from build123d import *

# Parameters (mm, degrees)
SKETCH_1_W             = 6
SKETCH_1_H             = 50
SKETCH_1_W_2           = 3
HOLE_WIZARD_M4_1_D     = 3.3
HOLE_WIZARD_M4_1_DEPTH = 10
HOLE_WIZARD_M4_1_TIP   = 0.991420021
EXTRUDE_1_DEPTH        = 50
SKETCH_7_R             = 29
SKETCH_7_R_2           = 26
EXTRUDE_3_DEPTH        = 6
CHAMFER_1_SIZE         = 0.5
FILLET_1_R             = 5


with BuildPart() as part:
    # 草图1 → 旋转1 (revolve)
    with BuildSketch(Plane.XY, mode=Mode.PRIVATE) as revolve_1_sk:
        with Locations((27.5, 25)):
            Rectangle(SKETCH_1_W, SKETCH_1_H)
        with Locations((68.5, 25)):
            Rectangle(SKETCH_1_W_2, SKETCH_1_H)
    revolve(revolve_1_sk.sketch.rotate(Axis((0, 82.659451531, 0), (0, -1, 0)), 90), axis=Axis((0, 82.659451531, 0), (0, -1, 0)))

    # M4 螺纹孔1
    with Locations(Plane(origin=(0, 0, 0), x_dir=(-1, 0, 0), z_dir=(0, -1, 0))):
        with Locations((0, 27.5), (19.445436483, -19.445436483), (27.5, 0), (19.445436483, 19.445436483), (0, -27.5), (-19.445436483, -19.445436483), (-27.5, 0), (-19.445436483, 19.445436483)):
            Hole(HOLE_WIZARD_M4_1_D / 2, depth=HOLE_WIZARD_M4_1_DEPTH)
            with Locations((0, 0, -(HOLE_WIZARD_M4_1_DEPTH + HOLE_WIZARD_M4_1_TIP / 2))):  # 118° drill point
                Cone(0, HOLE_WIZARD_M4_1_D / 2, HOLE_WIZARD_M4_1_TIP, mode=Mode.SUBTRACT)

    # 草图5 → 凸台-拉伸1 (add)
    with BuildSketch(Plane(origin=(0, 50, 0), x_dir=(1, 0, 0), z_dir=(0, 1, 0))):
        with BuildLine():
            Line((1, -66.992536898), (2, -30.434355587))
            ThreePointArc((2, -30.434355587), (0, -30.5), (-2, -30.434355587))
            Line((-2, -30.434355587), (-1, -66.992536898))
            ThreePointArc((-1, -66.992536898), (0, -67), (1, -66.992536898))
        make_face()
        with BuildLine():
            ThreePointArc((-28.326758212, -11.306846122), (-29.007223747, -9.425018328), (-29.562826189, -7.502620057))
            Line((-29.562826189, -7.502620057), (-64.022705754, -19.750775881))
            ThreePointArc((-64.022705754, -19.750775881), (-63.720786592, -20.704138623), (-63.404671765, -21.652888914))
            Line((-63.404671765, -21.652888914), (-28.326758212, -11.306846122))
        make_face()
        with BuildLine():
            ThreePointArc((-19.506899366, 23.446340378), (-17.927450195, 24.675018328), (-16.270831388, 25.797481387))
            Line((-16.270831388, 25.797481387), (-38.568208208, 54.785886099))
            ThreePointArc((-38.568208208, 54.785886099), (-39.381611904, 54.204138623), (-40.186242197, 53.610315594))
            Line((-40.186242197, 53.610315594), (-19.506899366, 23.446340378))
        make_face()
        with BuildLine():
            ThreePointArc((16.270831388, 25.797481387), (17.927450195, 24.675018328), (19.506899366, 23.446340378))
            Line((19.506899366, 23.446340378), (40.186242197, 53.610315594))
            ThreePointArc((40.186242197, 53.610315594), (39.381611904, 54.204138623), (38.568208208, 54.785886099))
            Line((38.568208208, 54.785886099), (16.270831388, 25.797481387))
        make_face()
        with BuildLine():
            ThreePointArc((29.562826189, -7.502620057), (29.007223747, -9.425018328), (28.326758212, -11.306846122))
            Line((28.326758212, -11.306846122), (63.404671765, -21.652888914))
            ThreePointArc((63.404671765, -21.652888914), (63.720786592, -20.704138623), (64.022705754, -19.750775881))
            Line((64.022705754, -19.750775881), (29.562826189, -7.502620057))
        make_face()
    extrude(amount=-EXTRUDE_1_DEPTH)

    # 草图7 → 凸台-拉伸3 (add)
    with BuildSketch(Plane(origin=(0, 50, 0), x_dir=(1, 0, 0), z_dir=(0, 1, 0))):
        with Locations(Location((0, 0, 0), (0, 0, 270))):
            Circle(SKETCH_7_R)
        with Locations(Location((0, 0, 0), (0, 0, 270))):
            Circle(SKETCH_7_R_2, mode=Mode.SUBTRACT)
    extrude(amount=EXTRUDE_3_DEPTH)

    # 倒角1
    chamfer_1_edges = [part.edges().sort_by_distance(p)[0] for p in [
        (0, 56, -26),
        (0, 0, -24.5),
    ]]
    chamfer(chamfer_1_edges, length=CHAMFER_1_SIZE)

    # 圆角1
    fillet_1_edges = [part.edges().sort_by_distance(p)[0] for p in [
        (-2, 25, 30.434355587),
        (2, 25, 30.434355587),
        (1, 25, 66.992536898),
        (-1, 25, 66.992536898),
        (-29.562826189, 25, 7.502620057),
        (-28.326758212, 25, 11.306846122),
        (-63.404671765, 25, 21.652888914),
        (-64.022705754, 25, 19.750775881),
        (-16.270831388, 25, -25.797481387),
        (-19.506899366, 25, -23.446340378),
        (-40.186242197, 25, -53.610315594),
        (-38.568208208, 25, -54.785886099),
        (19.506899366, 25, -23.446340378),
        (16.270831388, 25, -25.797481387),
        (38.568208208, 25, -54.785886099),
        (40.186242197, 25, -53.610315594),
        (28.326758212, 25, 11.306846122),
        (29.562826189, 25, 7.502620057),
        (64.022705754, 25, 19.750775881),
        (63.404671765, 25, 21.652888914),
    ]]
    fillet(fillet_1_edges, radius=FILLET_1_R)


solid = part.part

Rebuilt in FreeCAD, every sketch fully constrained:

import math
import FreeCAD as App
import Part
import Sketcher

V = App.Vector


def edges_at(feature, points):
    """Names of the edges that pass closest to the given points."""
    edges = feature.Shape.Edges
    near = lambda p: min(range(len(edges)), key=lambda i: edges[i].distToShape(Part.Vertex(*p))[0])
    return sorted({f"Edge{near(p) + 1}" for p in points})

doc = App.newDocument("Part")
body = doc.addObject("PartDesign::Body", "Body")
body.AllowCompound = True

# Sketch on XY plane
sketch1 = body.newObject("Sketcher::SketchObject", "Sketch")
sketch1.AttachmentSupport = (doc.getObject("XY_Plane"), [""])
sketch1.MapMode = "FlatFace"
sketch1.addGeometry(Part.LineSegment(V(24.5, 50, 0), V(24.5, 0, 0)), False)
sketch1.addGeometry(Part.LineSegment(V(24.5, 0, 0), V(30.5, 0, 0)), False)
sketch1.addGeometry(Part.LineSegment(V(30.5, 0, 0), V(30.5, 50, 0)), False)
sketch1.addGeometry(Part.LineSegment(V(30.5, 50, 0), V(24.5, 50, 0)), False)
sketch1.addGeometry(Part.LineSegment(V(67, 50, 0), V(67, 0, 0)), False)
sketch1.addGeometry(Part.LineSegment(V(67, 0, 0), V(70, 0, 0)), False)
sketch1.addGeometry(Part.LineSegment(V(70, 0, 0), V(70, 50, 0)), False)
sketch1.addGeometry(Part.LineSegment(V(70, 50, 0), V(67, 50, 0)), False)
sketch1.addConstraint(Sketcher.Constraint("Coincident", 0, 2, 1, 1))
sketch1.addConstraint(Sketcher.Constraint("Coincident", 1, 2, 2, 1))
sketch1.addConstraint(Sketcher.Constraint("Coincident", 2, 2, 3, 1))
sketch1.addConstraint(Sketcher.Constraint("Coincident", 3, 2, 0, 1))
sketch1.addConstraint(Sketcher.Constraint("Coincident", 4, 2, 5, 1))
sketch1.addConstraint(Sketcher.Constraint("Coincident", 5, 2, 6, 1))
sketch1.addConstraint(Sketcher.Constraint("Coincident", 6, 2, 7, 1))
sketch1.addConstraint(Sketcher.Constraint("Coincident", 7, 2, 4, 1))
sketch1.addConstraint(Sketcher.Constraint("Vertical", 0))
sketch1.addConstraint(Sketcher.Constraint("Horizontal", 1))
sketch1.addConstraint(Sketcher.Constraint("Vertical", 2))
sketch1.addConstraint(Sketcher.Constraint("Horizontal", 3))
sketch1.addConstraint(Sketcher.Constraint("Vertical", 4))
sketch1.addConstraint(Sketcher.Constraint("Horizontal", 5))
sketch1.addConstraint(Sketcher.Constraint("Vertical", 6))
sketch1.addConstraint(Sketcher.Constraint("Horizontal", 7))
sketch1.addConstraint(Sketcher.Constraint("PointOnObject", 0, 2, -1))
sketch1.addConstraint(Sketcher.Constraint("PointOnObject", 4, 2, -1))
sketch1.addConstraint(Sketcher.Constraint("Horizontal", 3, 2, 6, 2))
sketch1.addConstraint(Sketcher.Constraint("DistanceX", 1, 1, 1, 2, 6.0))
sketch1.addConstraint(Sketcher.Constraint("DistanceX", 5, 1, 5, 2, 3.0))
sketch1.addConstraint(Sketcher.Constraint("DistanceY", 0, 2, 0, 1, 50.0))
sketch1.addConstraint(Sketcher.Constraint("DistanceX", -1, 1, 4, 2, 67.0))
sketch1.addConstraint(Sketcher.Constraint("DistanceX", -1, 1, 0, 2, 24.5))
revolution = body.newObject("PartDesign::Revolution", "Revolution")
revolution.Profile = sketch1
revolution.ReferenceAxis = (sketch1, ["V_Axis"])
revolution.Angle = 360

# Sketch on XZ plane
sketch2 = body.newObject("Sketcher::SketchObject", "Sketch001")
sketch2.AttachmentSupport = (doc.getObject("XZ_Plane"), [""])
sketch2.MapMode = "FlatFace"
sketch2.addGeometry(Part.Circle(V(0, -27.5, 0), V(0, 0, 1), 1.6), False)
sketch2.addGeometry(Part.Circle(V(-19.4, 19.4, 0), V(0, 0, 1), 1.6), False)
sketch2.addGeometry(Part.Circle(V(-27.5, 0, 0), V(0, 0, 1), 1.6), False)
sketch2.addGeometry(Part.Circle(V(-19.4, -19.4, 0), V(0, 0, 1), 1.6), False)
sketch2.addGeometry(Part.Circle(V(0, 27.5, 0), V(0, 0, 1), 1.6), False)
sketch2.addGeometry(Part.Circle(V(19.4, 19.4, 0), V(0, 0, 1), 1.6), False)
sketch2.addGeometry(Part.Circle(V(27.5, 0, 0), V(0, 0, 1), 1.6), False)
sketch2.addGeometry(Part.Circle(V(19.4, -19.4, 0), V(0, 0, 1), 1.6), False)
sketch2.addConstraint(Sketcher.Constraint("Equal", 0, 1))
sketch2.addConstraint(Sketcher.Constraint("Equal", 1, 2))
sketch2.addConstraint(Sketcher.Constraint("Equal", 2, 3))
sketch2.addConstraint(Sketcher.Constraint("Equal", 3, 4))
sketch2.addConstraint(Sketcher.Constraint("Equal", 4, 5))
sketch2.addConstraint(Sketcher.Constraint("Equal", 5, 6))
sketch2.addConstraint(Sketcher.Constraint("Equal", 6, 7))
sketch2.addConstraint(Sketcher.Constraint("Symmetric", 0, 3, 4, 3, -1, 1))
sketch2.addConstraint(Sketcher.Constraint("Symmetric", 3, 3, 5, 3, -1, 1))
sketch2.addConstraint(Sketcher.Constraint("Symmetric", 2, 3, 6, 3, -1, 1))
sketch2.addConstraint(Sketcher.Constraint("Symmetric", 1, 3, 7, 3, -1, 1))
sketch2.addConstraint(Sketcher.Constraint("Symmetric", 1, 3, 5, 3, -2))
sketch2.addConstraint(Sketcher.Constraint("PointOnObject", 0, 3, -2))
sketch2.addConstraint(Sketcher.Constraint("PointOnObject", 2, 3, -1))
sketch2.addConstraint(Sketcher.Constraint("Diameter", 0, 3.3))
sketch2.addConstraint(Sketcher.Constraint("DistanceY", 0, 3, 4, 3, 55.0))
sketch2.addConstraint(Sketcher.Constraint("DistanceX", 2, 3, -1, 1, 27.5))
sketch2.addConstraint(Sketcher.Constraint("DistanceX", 1, 3, -1, 1, 19.445436))
sketch2.addConstraint(Sketcher.Constraint("DistanceY", -1, 1, 1, 3, 19.445436))
doc.recompute()
hole = body.newObject("PartDesign::Hole", "Hole")
hole.Profile = sketch2
hole.ThreadType = "None"
hole.Diameter = 3.3
hole.DepthType = "Dimension"
hole.Depth = 10
hole.DrillPoint = "Angled"
hole.DrillPointAngle = 118

# Sketch on XZ plane
sketch3 = body.newObject("Sketcher::SketchObject", "Sketch002")
sketch3.AttachmentSupport = (doc.getObject("XZ_Plane"), [""])
sketch3.MapMode = "FlatFace"
sketch3.AttachmentOffset = App.Placement(V(0, 0, -50), App.Rotation())
sketch3.addGeometry(Part.LineSegment(V(1, 66.992537, 0), V(2, 30.434356, 0)), False)
sketch3.addGeometry(Part.ArcOfCircle(Part.Circle(V(0, 0, 0), V(0, 0, 1), 30.5), math.radians(86.240202), math.radians(93.759798)), False)
sketch3.addGeometry(Part.LineSegment(V(-2, 30.434356, 0), V(-1, 66.992537, 0)), False)
sketch3.addGeometry(Part.ArcOfCircle(Part.Circle(V(0, -0.000002, 0), V(0, 0, 1), 67.000002), math.radians(89.144807), math.radians(90.855193)), False)
sketch3.addGeometry(Part.ArcOfCircle(Part.Circle(V(0, 0, 0), V(0, 0, 1), 30.5), math.radians(158.240202), math.radians(165.759798)), False)
sketch3.addGeometry(Part.LineSegment(V(-29.562826, 7.50262, 0), V(-64.022706, 19.750776, 0)), False)
sketch3.addGeometry(Part.ArcOfCircle(Part.Circle(V(-0.000004, 0.000001, 0), V(0, 0, 1), 66.999996), math.radians(161.144807), math.radians(162.855193)), False)
sketch3.addGeometry(Part.LineSegment(V(-63.404672, 21.652889, 0), V(-28.326758, 11.306846, 0)), False)
sketch3.addGeometry(Part.ArcOfCircle(Part.Circle(V(0, 0, 0), V(0, 0, 1), 30.5), math.radians(-129.759798), math.radians(-122.240202)), False)
sketch3.addGeometry(Part.LineSegment(V(-16.270831, -25.797481, 0), V(-38.568208, -54.785886, 0)), False)
sketch3.addGeometry(Part.ArcOfCircle(Part.Circle(V(0, 0, 0), V(0, 0, 1), 67), math.radians(-126.855193), math.radians(-125.144807)), False)
sketch3.addGeometry(Part.LineSegment(V(-40.186242, -53.610316, 0), V(-19.506899, -23.44634, 0)), False)
sketch3.addGeometry(Part.ArcOfCircle(Part.Circle(V(0, 0, 0), V(0, 0, 1), 30.5), math.radians(-57.759798), math.radians(-50.240202)), False)
sketch3.addGeometry(Part.LineSegment(V(19.506899, -23.44634, 0), V(40.186242, -53.610316, 0)), False)
sketch3.addGeometry(Part.ArcOfCircle(Part.Circle(V(0, 0, 0), V(0, 0, 1), 67), math.radians(-54.855193), math.radians(-53.144807)), False)
sketch3.addGeometry(Part.LineSegment(V(38.568208, -54.785886, 0), V(16.270831, -25.797481, 0)), False)
sketch3.addGeometry(Part.ArcOfCircle(Part.Circle(V(0, 0, 0), V(0, 0, 1), 30.5), math.radians(14.240202), math.radians(21.759798)), False)
sketch3.addGeometry(Part.LineSegment(V(28.326758, 11.306846, 0), V(63.404672, 21.652889, 0)), False)
sketch3.addGeometry(Part.ArcOfCircle(Part.Circle(V(0.000004, 0.000001, 0), V(0, 0, 1), 66.999996), math.radians(17.144807), math.radians(18.855193)), False)
sketch3.addGeometry(Part.LineSegment(V(64.022706, 19.750776, 0), V(29.562826, 7.50262, 0)), False)
sketch3.addConstraint(Sketcher.Constraint("Coincident", 0, 2, 1, 1))
sketch3.addConstraint(Sketcher.Constraint("Coincident", 1, 2, 2, 1))
sketch3.addConstraint(Sketcher.Constraint("Coincident", 2, 2, 3, 2))
sketch3.addConstraint(Sketcher.Constraint("Coincident", 3, 1, 0, 1))
sketch3.addConstraint(Sketcher.Constraint("Coincident", 4, 2, 5, 1))
sketch3.addConstraint(Sketcher.Constraint("Coincident", 5, 2, 6, 2))
sketch3.addConstraint(Sketcher.Constraint("Coincident", 6, 1, 7, 1))
sketch3.addConstraint(Sketcher.Constraint("Coincident", 7, 2, 4, 1))
sketch3.addConstraint(Sketcher.Constraint("Coincident", 8, 2, 9, 1))
sketch3.addConstraint(Sketcher.Constraint("Coincident", 9, 2, 10, 2))
sketch3.addConstraint(Sketcher.Constraint("Coincident", 10, 1, 11, 1))
sketch3.addConstraint(Sketcher.Constraint("Coincident", 11, 2, 8, 1))
sketch3.addConstraint(Sketcher.Constraint("Coincident", 12, 2, 13, 1))
sketch3.addConstraint(Sketcher.Constraint("Coincident", 13, 2, 14, 2))
sketch3.addConstraint(Sketcher.Constraint("Coincident", 14, 1, 15, 1))
sketch3.addConstraint(Sketcher.Constraint("Coincident", 15, 2, 12, 1))
sketch3.addConstraint(Sketcher.Constraint("Coincident", 16, 2, 17, 1))
sketch3.addConstraint(Sketcher.Constraint("Coincident", 17, 2, 18, 2))
sketch3.addConstraint(Sketcher.Constraint("Coincident", 18, 1, 19, 1))
sketch3.addConstraint(Sketcher.Constraint("Coincident", 19, 2, 16, 1))
sketch3.addConstraint(Sketcher.Constraint("Coincident", 1, 3, -1, 1))
sketch3.addConstraint(Sketcher.Constraint("Coincident", 3, 3, -1, 1))
sketch3.addConstraint(Sketcher.Constraint("Coincident", 4, 3, -1, 1))
sketch3.addConstraint(Sketcher.Constraint("Coincident", 6, 3, -1, 1))
sketch3.addConstraint(Sketcher.Constraint("Coincident", 8, 3, -1, 1))
sketch3.addConstraint(Sketcher.Constraint("Coincident", 10, 3, -1, 1))
sketch3.addConstraint(Sketcher.Constraint("Coincident", 12, 3, -1, 1))
sketch3.addConstraint(Sketcher.Constraint("Coincident", 14, 3, -1, 1))
sketch3.addConstraint(Sketcher.Constraint("Coincident", 16, 3, -1, 1))
sketch3.addConstraint(Sketcher.Constraint("Coincident", 18, 3, -1, 1))
sketch3.addConstraint(Sketcher.Constraint("Radius", 10, 67.0))
sketch3.addConstraint(Sketcher.Constraint("Radius", 14, 67.0))
sketch3.addConstraint(Sketcher.Constraint("Radius", 1, 30.5))
sketch3.addConstraint(Sketcher.Constraint("Radius", 4, 30.5))
sketch3.addConstraint(Sketcher.Constraint("Radius", 8, 30.5))
sketch3.addConstraint(Sketcher.Constraint("Radius", 12, 30.5))
sketch3.addConstraint(Sketcher.Constraint("Radius", 16, 30.5))
sketch3.addConstraint(Sketcher.Constraint("DistanceX", -1, 1, 0, 2, 2.0))
sketch3.addConstraint(Sketcher.Constraint("DistanceX", 1, 2, -1, 1, 2.0))
sketch3.addConstraint(Sketcher.Constraint("DistanceX", 2, 2, -1, 1, 1.0))
sketch3.addConstraint(Sketcher.Constraint("DistanceX", -1, 1, 3, 1, 1.0))
sketch3.addConstraint(Sketcher.Constraint("Radius", 3, 67.000002))
sketch3.addConstraint(Sketcher.Constraint("Radius", 6, 66.999996))
sketch3.addConstraint(Sketcher.Constraint("Radius", 18, 66.999996))
sketch3.addConstraint(Sketcher.Constraint("DistanceX", 11, 2, -1, 1, 19.506899))
sketch3.addConstraint(Sketcher.Constraint("DistanceX", -1, 1, 12, 2, 19.506899))
sketch3.addConstraint(Sketcher.Constraint("DistanceX", 5, 2, 6, 3, 64.022702))
sketch3.addConstraint(Sketcher.Constraint("DistanceY", -1, 1, 4, 2, 7.50262))
sketch3.addConstraint(Sketcher.Constraint("DistanceX", 6, 1, -1, 1, 63.404672))
sketch3.addConstraint(Sketcher.Constraint("DistanceX", 7, 2, -1, 1, 28.326758))
sketch3.addConstraint(Sketcher.Constraint("DistanceX", 8, 2, -1, 1, 16.270831))
sketch3.addConstraint(Sketcher.Constraint("DistanceX", 9, 2, -1, 1, 38.568208))
sketch3.addConstraint(Sketcher.Constraint("DistanceX", -1, 1, 14, 1, 38.568208))
sketch3.addConstraint(Sketcher.Constraint("DistanceX", -1, 1, 15, 2, 16.270831))
sketch3.addConstraint(Sketcher.Constraint("DistanceX", -1, 1, 16, 2, 28.326758))
sketch3.addConstraint(Sketcher.Constraint("DistanceX", -1, 1, 17, 2, 63.404672))
sketch3.addConstraint(Sketcher.Constraint("DistanceY", -1, 1, 19, 2, 7.50262))
sketch3.addConstraint(Sketcher.Constraint("DistanceY", 9, 2, 10, 1, 1.175571))
sketch3.addConstraint(Sketcher.Constraint("DistanceX", 11, 2, 13, 2, 59.693142))
sketch3.addConstraint(Sketcher.Constraint("DistanceY", 16, 2, 18, 1, 8.44393))
pad1 = body.newObject("PartDesign::Pad", "Pad")
pad1.Profile = sketch3
pad1.Length = 50

# Sketch on XZ plane
sketch4 = body.newObject("Sketcher::SketchObject", "Sketch003")
sketch4.AttachmentSupport = (doc.getObject("XZ_Plane"), [""])
sketch4.MapMode = "FlatFace"
sketch4.AttachmentOffset = App.Placement(V(0, 0, -50), App.Rotation())
sketch4.addGeometry(Part.Circle(V(0, 0, 0), V(0, 0, 1), 29), False)
sketch4.addGeometry(Part.Circle(V(0, 0, 0), V(0, 0, 1), 26), False)
sketch4.addConstraint(Sketcher.Constraint("Coincident", 0, 3, -1, 1))
sketch4.addConstraint(Sketcher.Constraint("Coincident", 1, 3, -1, 1))
sketch4.addConstraint(Sketcher.Constraint("Diameter", 0, 58.0))
sketch4.addConstraint(Sketcher.Constraint("Diameter", 1, 52.0))
pad2 = body.newObject("PartDesign::Pad", "Pad001")
pad2.Profile = sketch4
pad2.Length = 6
pad2.Reversed = True
doc.recompute()

chamfer = body.newObject("PartDesign::Chamfer", "Chamfer")
chamfer.Base = (pad2, edges_at(pad2, [(0, 56, -26), (0, 0, -24.5)]))
chamfer.Size = 0.5
doc.recompute()

fillet = body.newObject("PartDesign::Fillet", "Fillet")
fillet.Base = (chamfer, edges_at(chamfer, [
    (-2, 25, 30.434),
    (2, 25, 30.434),
    (1, 25, 66.993),
    (-1, 25, 66.993),
    (-29.563, 25, 7.503),
    (-28.327, 25, 11.307),
    (-63.405, 25, 21.653),
    (-64.023, 25, 19.751),
    (-16.271, 25, -25.797),
    (-19.507, 25, -23.446),
    (-40.186, 25, -53.61),
    (-38.568, 25, -54.786),
    (19.507, 25, -23.446),
    (16.271, 25, -25.797),
    (38.568, 25, -54.786),
    (40.186, 25, -53.61),
    (28.327, 25, 11.307),
    (29.563, 25, 7.503),
    (64.023, 25, 19.751),
    (63.405, 25, 21.653),
]))
fillet.Radius = 5

doc.recompute()
